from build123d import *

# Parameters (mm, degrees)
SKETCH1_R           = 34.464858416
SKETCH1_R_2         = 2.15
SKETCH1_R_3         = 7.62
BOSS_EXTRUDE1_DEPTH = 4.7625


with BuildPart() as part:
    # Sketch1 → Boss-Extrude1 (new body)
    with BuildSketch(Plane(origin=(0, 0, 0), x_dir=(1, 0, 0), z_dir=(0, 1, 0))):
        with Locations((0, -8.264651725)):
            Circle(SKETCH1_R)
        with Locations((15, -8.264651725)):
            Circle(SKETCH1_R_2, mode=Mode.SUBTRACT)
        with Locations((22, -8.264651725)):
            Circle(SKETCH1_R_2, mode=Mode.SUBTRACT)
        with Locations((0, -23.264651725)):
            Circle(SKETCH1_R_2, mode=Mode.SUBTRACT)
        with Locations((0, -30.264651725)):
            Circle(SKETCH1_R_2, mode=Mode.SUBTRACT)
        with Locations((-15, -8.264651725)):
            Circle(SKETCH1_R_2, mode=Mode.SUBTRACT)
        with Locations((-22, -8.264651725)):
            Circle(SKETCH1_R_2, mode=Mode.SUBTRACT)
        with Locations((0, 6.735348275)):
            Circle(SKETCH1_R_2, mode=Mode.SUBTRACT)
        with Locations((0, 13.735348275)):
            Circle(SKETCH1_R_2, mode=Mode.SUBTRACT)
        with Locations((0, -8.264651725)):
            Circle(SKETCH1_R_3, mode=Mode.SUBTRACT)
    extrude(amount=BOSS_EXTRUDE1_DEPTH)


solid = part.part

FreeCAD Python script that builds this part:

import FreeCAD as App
import Part
import Sketcher
Q = App.Units.Quantity

doc = App.newDocument("Part")
body = doc.addObject("PartDesign::Body", "Body")

# Sketch on XZ plane
sketch1 = body.newObject("Sketcher::SketchObject", "Sketch")
sketch1.AttachmentSupport = (doc.getObject("XZ_Plane"), [""])
sketch1.MapMode = "FlatFace"
sketch1.addGeometry([
    Part.Circle(App.Vector(0, 8.3, 0), App.Vector(0, 0, 1), 34.5),  # 0
    Part.Circle(App.Vector(0, 30.3, 0), App.Vector(0, 0, 1), 2.1),  # 1
    Part.Circle(App.Vector(0, 23.3, 0), App.Vector(0, 0, 1), 2.1),  # 2
    Part.Circle(App.Vector(-22, 8.3, 0), App.Vector(0, 0, 1), 2.1),  # 3
    Part.Circle(App.Vector(-15, 8.3, 0), App.Vector(0, 0, 1), 2.1),  # 4
    Part.Circle(App.Vector(0, 8.3, 0), App.Vector(0, 0, 1), 7.6),  # 5
    Part.Circle(App.Vector(15, 8.3, 0), App.Vector(0, 0, 1), 2.1),  # 6
    Part.Circle(App.Vector(22, 8.3, 0), App.Vector(0, 0, 1), 2.1),  # 7
    Part.Circle(App.Vector(0, -6.7, 0), App.Vector(0, 0, 1), 2.1),  # 8
    Part.Circle(App.Vector(0, -13.7, 0), App.Vector(0, 0, 1), 2.1),  # 9
], False)
sketch1.addConstraint([
    Sketcher.Constraint("Coincident", 5, 3, 0, 3),
    Sketcher.Constraint("Equal", 1, 2),
    Sketcher.Constraint("Equal", 2, 3),
    Sketcher.Constraint("Equal", 3, 4),
    Sketcher.Constraint("Equal", 4, 6),
    Sketcher.Constraint("Equal", 6, 7),
    Sketcher.Constraint("Equal", 7, 8),
    Sketcher.Constraint("Equal", 8, 9),
    Sketcher.Constraint("Symmetric", 4, 3, 6, 3, -2),
    Sketcher.Constraint("Symmetric", 3, 3, 7, 3, -2),
    Sketcher.Constraint("PointOnObject", 0, 3, -2),
    Sketcher.Constraint("PointOnObject", 1, 3, -2),
    Sketcher.Constraint("PointOnObject", 2, 3, -2),
    Sketcher.Constraint("PointOnObject", 8, 3, -2),
    Sketcher.Constraint("PointOnObject", 9, 3, -2),
    Sketcher.Constraint("Horizontal", 0, 3, 3, 3),
    Sketcher.Constraint("Horizontal", 3, 3, 4, 3),
    Sketcher.Constraint("Diameter", 5, Q("0.6 in")),
    Sketcher.Constraint("Diameter", 1, 4.3),
    Sketcher.Constraint("Diameter", 0, 68.929717),
    Sketcher.Constraint("DistanceX", 3, 3, -1, 1, 22.0),
    Sketcher.Constraint("DistanceX", 4, 3, -1, 1, 15.0),
    Sketcher.Constraint("DistanceY", 0, 3, 1, 3, 22.0),
    Sketcher.Constraint("DistanceY", 2, 3, 1, 3, 7.0),
    Sketcher.Constraint("DistanceY", 8, 3, 0, 3, 15.0),
    Sketcher.Constraint("DistanceY", 9, 3, 8, 3, 7.0),
    Sketcher.Constraint("DistanceY", -1, 1, 0, 3, 8.264652),
])
pad1 = body.newObject("PartDesign::Pad", "Pad")
pad1.Profile = sketch1
pad1.Length = Q("0.1875 in")
pad1.Reversed = True

doc.recompute()
